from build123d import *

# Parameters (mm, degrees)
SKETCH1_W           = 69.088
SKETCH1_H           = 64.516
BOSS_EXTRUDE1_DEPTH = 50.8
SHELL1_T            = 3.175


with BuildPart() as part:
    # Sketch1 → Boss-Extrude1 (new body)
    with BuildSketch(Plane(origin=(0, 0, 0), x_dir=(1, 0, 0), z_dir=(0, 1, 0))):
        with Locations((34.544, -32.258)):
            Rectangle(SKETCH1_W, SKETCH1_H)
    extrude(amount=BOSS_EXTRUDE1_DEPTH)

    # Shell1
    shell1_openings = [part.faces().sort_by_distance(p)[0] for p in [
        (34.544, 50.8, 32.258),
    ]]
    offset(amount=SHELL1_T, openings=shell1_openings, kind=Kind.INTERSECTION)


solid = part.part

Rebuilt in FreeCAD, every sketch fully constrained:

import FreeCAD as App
import Part
import Sketcher
Q = App.Units.Quantity


def faces_at(feature, points):
    """Names of the faces that lie closest to the given points."""
    faces = feature.Shape.Faces
    near = lambda p: min(range(len(faces)), key=lambda i: faces[i].distToShape(Part.Vertex(*p))[0])
    return sorted({f"Face{near(p) + 1}" for p in points})


def add_polygon(sketch, points):
    """Adds a closed chain of lines whose ends are joined by coincident constraints."""
    first, n = sketch.GeometryCount, len(points)
    for a, b in zip(points, points[1:] + points[:1]):
        sketch.addGeometry(Part.LineSegment(App.Vector(*a, 0), App.Vector(*b, 0)), False)
    for i in range(n):
        sketch.addConstraint(Sketcher.Constraint("Coincident", first + i, 2, first + (i + 1) % n, 1))

doc = App.newDocument("Part")
body = doc.addObject("PartDesign::Body", "Body")

sketch1 = body.newObject("Sketcher::SketchObject", "Sketch")
sketch1.AttachmentSupport = (doc.getObject("XZ_Plane"), [""])
sketch1.MapMode = "FlatFace"
add_polygon(sketch1, [(0, 0), (0, 65), (69, 65), (69, 0)])
sketch1.addConstraint([
    Sketcher.Constraint("Vertical", 0),
    Sketcher.Constraint("Horizontal", 1),
    Sketcher.Constraint("Vertical", 2),
    Sketcher.Constraint("Horizontal", 3),
    Sketcher.Constraint("Coincident", 3, 2, -1, 1),
    Sketcher.Constraint("DistanceX", 1, 1, 1, 2, Q("2.72 in")),
    Sketcher.Constraint("DistanceY", 0, 1, 0, 2, Q("2.54 in")),
])
pad1 = body.newObject("PartDesign::Pad", "Pad")
pad1.Profile = sketch1
pad1.Length = Q("2 in")
pad1.Reversed = True
doc.recompute()

thickness = body.newObject("PartDesign::Thickness", "Thickness")
thickness.Base = (pad1, faces_at(pad1, [(34.544, 50.8, 32.258)]))
thickness.Value = Q("0.125 in")
thickness.Reversed = False
thickness.Join = "Intersection"

doc.recompute()
